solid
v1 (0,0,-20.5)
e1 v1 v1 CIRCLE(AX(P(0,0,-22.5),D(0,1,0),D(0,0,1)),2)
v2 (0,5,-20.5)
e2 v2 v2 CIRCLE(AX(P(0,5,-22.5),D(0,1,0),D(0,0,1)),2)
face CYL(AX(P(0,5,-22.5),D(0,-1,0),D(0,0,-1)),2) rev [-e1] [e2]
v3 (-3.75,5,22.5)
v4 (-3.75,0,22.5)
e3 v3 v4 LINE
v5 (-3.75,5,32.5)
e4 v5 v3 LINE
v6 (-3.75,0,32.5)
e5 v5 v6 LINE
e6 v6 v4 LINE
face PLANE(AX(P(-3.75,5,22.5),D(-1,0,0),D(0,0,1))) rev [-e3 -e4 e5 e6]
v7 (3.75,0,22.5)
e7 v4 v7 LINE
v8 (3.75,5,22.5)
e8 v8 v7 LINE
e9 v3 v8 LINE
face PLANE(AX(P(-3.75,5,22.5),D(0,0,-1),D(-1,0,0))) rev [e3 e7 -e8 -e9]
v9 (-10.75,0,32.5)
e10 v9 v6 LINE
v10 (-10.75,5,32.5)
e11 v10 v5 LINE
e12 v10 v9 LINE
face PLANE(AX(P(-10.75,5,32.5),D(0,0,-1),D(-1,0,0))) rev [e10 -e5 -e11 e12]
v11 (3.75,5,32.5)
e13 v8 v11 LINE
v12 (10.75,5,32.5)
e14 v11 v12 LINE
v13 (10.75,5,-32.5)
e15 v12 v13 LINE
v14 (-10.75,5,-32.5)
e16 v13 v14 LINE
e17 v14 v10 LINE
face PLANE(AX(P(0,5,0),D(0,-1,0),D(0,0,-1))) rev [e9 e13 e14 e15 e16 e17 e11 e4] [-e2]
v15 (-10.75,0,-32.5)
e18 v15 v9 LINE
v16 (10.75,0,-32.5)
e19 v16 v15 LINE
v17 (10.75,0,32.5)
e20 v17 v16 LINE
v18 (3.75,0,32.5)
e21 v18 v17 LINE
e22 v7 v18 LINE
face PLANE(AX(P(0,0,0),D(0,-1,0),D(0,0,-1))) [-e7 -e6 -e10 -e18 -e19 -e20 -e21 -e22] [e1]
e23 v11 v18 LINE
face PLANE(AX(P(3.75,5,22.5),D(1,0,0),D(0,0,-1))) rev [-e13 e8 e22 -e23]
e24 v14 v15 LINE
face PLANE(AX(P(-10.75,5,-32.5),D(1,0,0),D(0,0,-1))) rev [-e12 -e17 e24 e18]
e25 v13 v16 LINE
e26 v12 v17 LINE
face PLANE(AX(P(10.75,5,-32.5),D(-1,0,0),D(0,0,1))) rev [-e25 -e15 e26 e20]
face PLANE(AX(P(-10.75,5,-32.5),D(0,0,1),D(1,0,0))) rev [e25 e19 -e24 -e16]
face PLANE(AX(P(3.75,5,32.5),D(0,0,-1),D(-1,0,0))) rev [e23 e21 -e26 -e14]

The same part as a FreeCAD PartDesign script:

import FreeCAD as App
import Part
import Sketcher
Q = App.Units.Quantity

doc = App.newDocument("Part")
body = doc.addObject("PartDesign::Body", "Body")

# Sketch on XZ plane
sketch1 = body.newObject("Sketcher::SketchObject", "Sketch")
sketch1.AttachmentSupport = (doc.getObject("XZ_Plane"), [""])
sketch1.MapMode = "FlatFace"
sketch1.addGeometry(Part.LineSegment(App.Vector(10.75, -32.5, 0), App.Vector(-10.75, -32.5, 0)), False)
sketch1.addGeometry(Part.LineSegment(App.Vector(-10.75, -32.5, 0), App.Vector(-10.75, 32.5, 0)), False)
sketch1.addGeometry(Part.LineSegment(App.Vector(-10.75, 32.5, 0), App.Vector(-3.75, 32.5, 0)), False)
sketch1.addGeometry(Part.LineSegment(App.Vector(-3.75, 32.5, 0), App.Vector(-3.75, 22.5, 0)), False)
sketch1.addGeometry(Part.LineSegment(App.Vector(-3.75, 22.5, 0), App.Vector(3.75, 22.5, 0)), False)
sketch1.addGeometry(Part.LineSegment(App.Vector(3.75, 22.5, 0), App.Vector(3.75, 32.5, 0)), False)
sketch1.addGeometry(Part.LineSegment(App.Vector(3.75, 32.5, 0), App.Vector(10.75, 32.5, 0)), False)
sketch1.addGeometry(Part.LineSegment(App.Vector(10.75, 32.5, 0), App.Vector(10.75, -32.5, 0)), False)
sketch1.addGeometry(Part.Circle(App.Vector(0, -22.5, 0), App.Vector(0, 0, 1), 2), False)
sketch1.addConstraint(Sketcher.Constraint("Coincident", 0, 2, 1, 1))
sketch1.addConstraint(Sketcher.Constraint("Coincident", 1, 2, 2, 1))
sketch1.addConstraint(Sketcher.Constraint("Coincident", 2, 2, 3, 1))
sketch1.addConstraint(Sketcher.Constraint("Coincident", 3, 2, 4, 1))
sketch1.addConstraint(Sketcher.Constraint("Coincident", 4, 2, 5, 1))
sketch1.addConstraint(Sketcher.Constraint("Coincident", 5, 2, 6, 1))
sketch1.addConstraint(Sketcher.Constraint("Coincident", 6, 2, 7, 1))
sketch1.addConstraint(Sketcher.Constraint("Coincident", 7, 2, 0, 1))
sketch1.addConstraint(Sketcher.Constraint("Horizontal", 0))
sketch1.addConstraint(Sketcher.Constraint("Vertical", 1))
sketch1.addConstraint(Sketcher.Constraint("Horizontal", 2))
sketch1.addConstraint(Sketcher.Constraint("Vertical", 3))
sketch1.addConstraint(Sketcher.Constraint("Horizontal", 4))
sketch1.addConstraint(Sketcher.Constraint("Vertical", 5))
sketch1.addConstraint(Sketcher.Constraint("Horizontal", 6))
sketch1.addConstraint(Sketcher.Constraint("Vertical", 7))
sketch1.addConstraint(Sketcher.Constraint("Symmetric", 0, 2, 6, 2, -1, 1))
sketch1.addConstraint(Sketcher.Constraint("Symmetric", 2, 2, 5, 2, -2))
sketch1.addConstraint(Sketcher.Constraint("PointOnObject", 8, 3, -2))
sketch1.addConstraint(Sketcher.Constraint("Diameter", 8, Q("4 mm")))
sketch1.addConstraint(Sketcher.Constraint("DistanceX", 2, 1, 2, 2, Q("7 mm")))
sketch1.addConstraint(Sketcher.Constraint("DistanceY", 1, 1, 1, 2, Q("65 mm")))
sketch1.addConstraint(Sketcher.Constraint("DistanceY", 3, 2, 3, 1, Q("10 mm")))
sketch1.addConstraint(Sketcher.Constraint("DistanceX", 0, 2, 0, 1, Q("21.5 mm")))
sketch1.addConstraint(Sketcher.Constraint("DistanceY", 0, 2, 8, 3, Q("10 mm")))
pad1 = body.newObject("PartDesign::Pad", "Pad")
pad1.Profile = sketch1
pad1.Length = 5
pad1.Reversed = True

doc.recompute()
